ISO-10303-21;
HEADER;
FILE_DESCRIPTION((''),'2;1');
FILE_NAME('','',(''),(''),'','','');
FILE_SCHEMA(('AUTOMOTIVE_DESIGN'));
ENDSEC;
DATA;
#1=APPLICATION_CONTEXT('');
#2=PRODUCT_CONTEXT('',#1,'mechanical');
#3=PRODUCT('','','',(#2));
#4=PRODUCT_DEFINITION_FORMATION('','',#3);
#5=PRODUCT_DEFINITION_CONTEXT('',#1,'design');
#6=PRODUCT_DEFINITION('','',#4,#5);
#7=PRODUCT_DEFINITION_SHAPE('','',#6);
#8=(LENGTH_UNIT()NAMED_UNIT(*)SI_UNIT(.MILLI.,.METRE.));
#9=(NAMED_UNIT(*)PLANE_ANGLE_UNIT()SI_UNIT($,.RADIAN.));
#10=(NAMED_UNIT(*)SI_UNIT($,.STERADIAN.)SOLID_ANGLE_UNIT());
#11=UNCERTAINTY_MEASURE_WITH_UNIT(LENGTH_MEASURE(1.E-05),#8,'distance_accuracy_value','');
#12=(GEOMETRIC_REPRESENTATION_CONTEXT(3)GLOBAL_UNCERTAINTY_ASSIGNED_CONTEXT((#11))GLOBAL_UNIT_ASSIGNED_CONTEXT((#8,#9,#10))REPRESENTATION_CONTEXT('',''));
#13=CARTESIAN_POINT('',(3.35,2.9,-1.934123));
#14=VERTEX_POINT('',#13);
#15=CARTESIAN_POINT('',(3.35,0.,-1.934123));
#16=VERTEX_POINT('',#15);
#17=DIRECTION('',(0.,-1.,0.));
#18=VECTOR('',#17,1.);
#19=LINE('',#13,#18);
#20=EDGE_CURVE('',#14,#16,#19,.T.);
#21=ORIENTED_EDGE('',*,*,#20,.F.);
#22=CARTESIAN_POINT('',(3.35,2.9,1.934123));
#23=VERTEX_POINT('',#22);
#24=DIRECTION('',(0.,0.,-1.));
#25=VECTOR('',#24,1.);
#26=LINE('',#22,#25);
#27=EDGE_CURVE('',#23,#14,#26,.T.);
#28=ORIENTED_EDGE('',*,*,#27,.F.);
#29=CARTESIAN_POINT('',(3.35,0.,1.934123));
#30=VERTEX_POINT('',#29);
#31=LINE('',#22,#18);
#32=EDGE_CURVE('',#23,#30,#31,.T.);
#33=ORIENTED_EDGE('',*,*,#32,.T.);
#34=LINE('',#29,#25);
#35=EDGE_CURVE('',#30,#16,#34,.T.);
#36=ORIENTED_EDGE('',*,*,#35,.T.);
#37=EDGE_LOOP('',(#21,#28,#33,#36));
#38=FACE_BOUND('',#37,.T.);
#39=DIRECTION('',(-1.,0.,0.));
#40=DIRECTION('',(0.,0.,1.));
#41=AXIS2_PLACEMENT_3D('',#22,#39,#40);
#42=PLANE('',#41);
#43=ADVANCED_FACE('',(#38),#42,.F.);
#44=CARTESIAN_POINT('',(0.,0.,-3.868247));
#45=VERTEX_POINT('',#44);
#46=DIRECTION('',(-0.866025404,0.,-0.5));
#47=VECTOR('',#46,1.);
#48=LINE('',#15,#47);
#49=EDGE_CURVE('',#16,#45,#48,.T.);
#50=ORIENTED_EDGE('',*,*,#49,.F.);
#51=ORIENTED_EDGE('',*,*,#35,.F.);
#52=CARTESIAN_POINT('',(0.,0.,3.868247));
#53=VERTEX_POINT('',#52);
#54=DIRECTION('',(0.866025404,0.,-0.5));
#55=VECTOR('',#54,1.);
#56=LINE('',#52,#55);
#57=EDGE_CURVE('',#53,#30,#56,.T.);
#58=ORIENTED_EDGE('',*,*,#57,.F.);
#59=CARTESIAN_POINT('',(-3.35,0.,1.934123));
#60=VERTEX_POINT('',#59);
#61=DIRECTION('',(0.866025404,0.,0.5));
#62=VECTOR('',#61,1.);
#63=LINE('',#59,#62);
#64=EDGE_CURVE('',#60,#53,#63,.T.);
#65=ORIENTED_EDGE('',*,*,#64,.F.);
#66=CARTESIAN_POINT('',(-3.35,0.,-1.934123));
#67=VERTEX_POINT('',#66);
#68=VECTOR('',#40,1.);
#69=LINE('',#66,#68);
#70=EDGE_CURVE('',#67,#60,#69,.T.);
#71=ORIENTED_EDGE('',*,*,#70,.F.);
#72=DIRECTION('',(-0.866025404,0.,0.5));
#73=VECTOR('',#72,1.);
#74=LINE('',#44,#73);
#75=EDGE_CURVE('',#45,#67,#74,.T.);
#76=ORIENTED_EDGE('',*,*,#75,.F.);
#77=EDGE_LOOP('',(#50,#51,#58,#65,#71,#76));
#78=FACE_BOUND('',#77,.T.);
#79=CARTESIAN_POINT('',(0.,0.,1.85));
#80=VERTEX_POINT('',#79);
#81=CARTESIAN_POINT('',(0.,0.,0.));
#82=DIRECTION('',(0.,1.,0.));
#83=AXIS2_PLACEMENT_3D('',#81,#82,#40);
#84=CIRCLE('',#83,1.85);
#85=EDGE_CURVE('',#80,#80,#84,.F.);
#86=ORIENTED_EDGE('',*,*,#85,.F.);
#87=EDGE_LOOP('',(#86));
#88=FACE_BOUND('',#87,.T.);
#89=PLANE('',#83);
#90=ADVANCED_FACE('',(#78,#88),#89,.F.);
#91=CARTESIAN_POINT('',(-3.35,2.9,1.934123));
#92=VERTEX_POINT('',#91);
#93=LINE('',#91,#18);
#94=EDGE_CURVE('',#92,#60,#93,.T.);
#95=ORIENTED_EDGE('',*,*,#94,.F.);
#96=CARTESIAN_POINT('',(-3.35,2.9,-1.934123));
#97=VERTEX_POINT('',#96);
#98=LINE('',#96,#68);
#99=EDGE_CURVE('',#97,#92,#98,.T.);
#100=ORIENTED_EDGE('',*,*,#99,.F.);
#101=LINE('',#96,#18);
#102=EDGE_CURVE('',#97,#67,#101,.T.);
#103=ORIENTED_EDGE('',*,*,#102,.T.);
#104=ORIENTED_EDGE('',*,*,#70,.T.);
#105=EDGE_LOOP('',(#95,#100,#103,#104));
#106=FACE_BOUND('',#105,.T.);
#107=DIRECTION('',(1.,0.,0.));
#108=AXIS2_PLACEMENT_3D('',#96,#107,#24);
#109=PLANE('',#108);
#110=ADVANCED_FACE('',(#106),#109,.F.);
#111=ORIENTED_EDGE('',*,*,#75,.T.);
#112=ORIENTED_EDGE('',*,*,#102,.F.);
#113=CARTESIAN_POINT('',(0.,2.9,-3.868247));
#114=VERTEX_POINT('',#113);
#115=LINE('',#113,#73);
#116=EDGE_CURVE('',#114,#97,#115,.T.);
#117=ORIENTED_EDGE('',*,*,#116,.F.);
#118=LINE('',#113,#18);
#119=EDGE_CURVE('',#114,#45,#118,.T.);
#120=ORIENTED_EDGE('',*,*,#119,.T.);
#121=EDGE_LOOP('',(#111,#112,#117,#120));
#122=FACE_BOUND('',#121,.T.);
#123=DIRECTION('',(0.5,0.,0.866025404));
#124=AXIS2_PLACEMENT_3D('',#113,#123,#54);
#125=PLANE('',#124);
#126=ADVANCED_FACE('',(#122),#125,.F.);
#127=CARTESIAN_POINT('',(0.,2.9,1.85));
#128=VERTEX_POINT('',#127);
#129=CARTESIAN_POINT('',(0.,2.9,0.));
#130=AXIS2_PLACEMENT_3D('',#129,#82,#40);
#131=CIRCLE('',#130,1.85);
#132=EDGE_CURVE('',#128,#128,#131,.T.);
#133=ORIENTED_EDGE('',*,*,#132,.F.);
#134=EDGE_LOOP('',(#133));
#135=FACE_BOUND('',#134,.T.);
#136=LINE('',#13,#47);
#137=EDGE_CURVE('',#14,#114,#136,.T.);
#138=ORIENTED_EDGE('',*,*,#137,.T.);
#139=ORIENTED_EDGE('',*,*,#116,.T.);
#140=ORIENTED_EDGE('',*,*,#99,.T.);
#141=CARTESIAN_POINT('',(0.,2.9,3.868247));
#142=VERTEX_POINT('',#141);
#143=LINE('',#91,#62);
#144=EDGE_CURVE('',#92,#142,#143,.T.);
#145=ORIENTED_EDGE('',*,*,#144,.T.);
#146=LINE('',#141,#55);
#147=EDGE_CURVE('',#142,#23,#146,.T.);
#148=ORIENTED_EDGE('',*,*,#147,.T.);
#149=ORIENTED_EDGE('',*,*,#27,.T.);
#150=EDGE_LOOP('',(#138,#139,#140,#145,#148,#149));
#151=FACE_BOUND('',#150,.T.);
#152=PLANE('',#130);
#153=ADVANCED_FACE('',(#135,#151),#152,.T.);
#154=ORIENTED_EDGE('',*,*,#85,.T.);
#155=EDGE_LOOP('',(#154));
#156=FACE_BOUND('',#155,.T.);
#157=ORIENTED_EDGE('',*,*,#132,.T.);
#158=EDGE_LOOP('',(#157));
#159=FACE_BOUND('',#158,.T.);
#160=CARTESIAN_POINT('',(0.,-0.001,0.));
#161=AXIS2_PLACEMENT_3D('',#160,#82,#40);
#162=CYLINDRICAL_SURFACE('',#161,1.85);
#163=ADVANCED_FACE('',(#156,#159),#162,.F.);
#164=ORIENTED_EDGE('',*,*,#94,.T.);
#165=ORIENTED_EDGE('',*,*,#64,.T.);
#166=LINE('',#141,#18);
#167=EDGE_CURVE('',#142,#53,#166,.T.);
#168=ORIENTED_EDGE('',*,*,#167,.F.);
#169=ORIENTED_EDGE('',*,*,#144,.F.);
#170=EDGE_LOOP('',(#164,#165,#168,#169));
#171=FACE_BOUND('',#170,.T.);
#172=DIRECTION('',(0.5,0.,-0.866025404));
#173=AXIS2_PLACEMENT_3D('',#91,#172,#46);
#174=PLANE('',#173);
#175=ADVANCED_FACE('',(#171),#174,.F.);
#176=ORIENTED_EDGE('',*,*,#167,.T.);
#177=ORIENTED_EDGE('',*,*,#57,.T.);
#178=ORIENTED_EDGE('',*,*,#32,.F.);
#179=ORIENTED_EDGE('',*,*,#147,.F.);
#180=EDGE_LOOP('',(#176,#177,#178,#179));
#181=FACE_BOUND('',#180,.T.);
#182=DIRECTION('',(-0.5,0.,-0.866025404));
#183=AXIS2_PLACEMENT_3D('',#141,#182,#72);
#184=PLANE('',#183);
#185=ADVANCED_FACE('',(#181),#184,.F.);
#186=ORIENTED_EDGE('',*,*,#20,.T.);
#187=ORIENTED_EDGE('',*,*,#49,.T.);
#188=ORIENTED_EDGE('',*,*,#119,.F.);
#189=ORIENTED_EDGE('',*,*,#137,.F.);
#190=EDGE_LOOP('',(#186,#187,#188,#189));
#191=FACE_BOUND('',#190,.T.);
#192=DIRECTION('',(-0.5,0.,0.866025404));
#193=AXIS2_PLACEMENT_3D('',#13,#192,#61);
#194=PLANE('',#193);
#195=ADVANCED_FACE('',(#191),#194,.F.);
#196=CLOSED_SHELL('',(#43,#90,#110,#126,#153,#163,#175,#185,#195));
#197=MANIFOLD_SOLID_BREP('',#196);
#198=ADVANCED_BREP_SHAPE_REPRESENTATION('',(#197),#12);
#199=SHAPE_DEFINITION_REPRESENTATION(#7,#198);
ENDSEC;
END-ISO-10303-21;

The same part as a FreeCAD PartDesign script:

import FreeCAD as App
import Part
import Sketcher
from FreeCAD import Vector
Q = App.Units.Quantity

doc = App.newDocument("Part")
body = doc.addObject("PartDesign::Body", "Body")

# Sketch on XZ plane
sketch1 = body.newObject("Sketcher::SketchObject", "Sketch")
sketch1.AttachmentSupport = (doc.getObject("XZ_Plane"), [""])
sketch1.MapMode = "FlatFace"
sketch1.addGeometry(Part.LineSegment(Vector(0, -3.9, 0), Vector(-3.4, -1.9, 0)), False)
sketch1.addGeometry(Part.LineSegment(Vector(-3.4, -1.9, 0), Vector(-3.4, 1.9, 0)), False)
sketch1.addGeometry(Part.LineSegment(Vector(-3.4, 1.9, 0), Vector(0, 3.9, 0)), False)
sketch1.addGeometry(Part.LineSegment(Vector(0, 3.9, 0), Vector(3.4, 1.9, 0)), False)
sketch1.addGeometry(Part.LineSegment(Vector(3.4, 1.9, 0), Vector(3.4, -1.9, 0)), False)
sketch1.addGeometry(Part.LineSegment(Vector(3.4, -1.9, 0), Vector(0, -3.9, 0)), False)
sketch1.addConstraint(Sketcher.Constraint("Coincident", 0, 2, 1, 1))
sketch1.addConstraint(Sketcher.Constraint("Coincident", 1, 2, 2, 1))
sketch1.addConstraint(Sketcher.Constraint("Coincident", 2, 2, 3, 1))
sketch1.addConstraint(Sketcher.Constraint("Coincident", 3, 2, 4, 1))
sketch1.addConstraint(Sketcher.Constraint("Coincident", 4, 2, 5, 1))
sketch1.addConstraint(Sketcher.Constraint("Coincident", 5, 2, 0, 1))
sketch1.addConstraint(Sketcher.Constraint("Vertical", 1))
sketch1.addConstraint(Sketcher.Constraint("Vertical", 4))
sketch1.addConstraint(Sketcher.Constraint("Symmetric", 0, 2, 3, 2, -1, 1))
sketch1.addConstraint(Sketcher.Constraint("Symmetric", 2, 2, 5, 2, -1, 1))
sketch1.addConstraint(Sketcher.Constraint("PointOnObject", 2, 2, -2))
sketch1.addConstraint(Sketcher.Constraint("Parallel", 2, 5))
sketch1.addConstraint(Sketcher.Constraint("Horizontal", 1, 2, 3, 2))
sketch1.addConstraint(Sketcher.Constraint("Angle", 0, Q("150 deg")))
sketch1.addConstraint(Sketcher.Constraint("DistanceX", 1, 2, 3, 2, 6.7))
sketch1.addConstraint(Sketcher.Constraint("DistanceY", 1, 1, 1, 2, 3.868247))
pad1 = body.newObject("PartDesign::Pad", "Pad")
pad1.Profile = sketch1
pad1.Length = 2.9
pad1.Reversed = True

# Sketch on XZ plane
sketch2 = body.newObject("Sketcher::SketchObject", "Sketch001")
sketch2.AttachmentSupport = (doc.getObject("XZ_Plane"), [""])
sketch2.MapMode = "FlatFace"
sketch2.AttachmentOffset = App.Placement(Vector(0, 0, -2.9), App.Rotation())
sketch2.addGeometry(Part.Circle(Vector(0, 0, 0), Vector(0, 0, 1), 1.9), False)
sketch2.addConstraint(Sketcher.Constraint("Coincident", 0, 3, -1, 1))
sketch2.addConstraint(Sketcher.Constraint("Diameter", 0, 3.7))
pocket1 = body.newObject("PartDesign::Pocket", "Pocket")
pocket1.Profile = sketch2
pocket1.Type = "UpToFirst"
pocket1.Reversed = True

doc.recompute()
